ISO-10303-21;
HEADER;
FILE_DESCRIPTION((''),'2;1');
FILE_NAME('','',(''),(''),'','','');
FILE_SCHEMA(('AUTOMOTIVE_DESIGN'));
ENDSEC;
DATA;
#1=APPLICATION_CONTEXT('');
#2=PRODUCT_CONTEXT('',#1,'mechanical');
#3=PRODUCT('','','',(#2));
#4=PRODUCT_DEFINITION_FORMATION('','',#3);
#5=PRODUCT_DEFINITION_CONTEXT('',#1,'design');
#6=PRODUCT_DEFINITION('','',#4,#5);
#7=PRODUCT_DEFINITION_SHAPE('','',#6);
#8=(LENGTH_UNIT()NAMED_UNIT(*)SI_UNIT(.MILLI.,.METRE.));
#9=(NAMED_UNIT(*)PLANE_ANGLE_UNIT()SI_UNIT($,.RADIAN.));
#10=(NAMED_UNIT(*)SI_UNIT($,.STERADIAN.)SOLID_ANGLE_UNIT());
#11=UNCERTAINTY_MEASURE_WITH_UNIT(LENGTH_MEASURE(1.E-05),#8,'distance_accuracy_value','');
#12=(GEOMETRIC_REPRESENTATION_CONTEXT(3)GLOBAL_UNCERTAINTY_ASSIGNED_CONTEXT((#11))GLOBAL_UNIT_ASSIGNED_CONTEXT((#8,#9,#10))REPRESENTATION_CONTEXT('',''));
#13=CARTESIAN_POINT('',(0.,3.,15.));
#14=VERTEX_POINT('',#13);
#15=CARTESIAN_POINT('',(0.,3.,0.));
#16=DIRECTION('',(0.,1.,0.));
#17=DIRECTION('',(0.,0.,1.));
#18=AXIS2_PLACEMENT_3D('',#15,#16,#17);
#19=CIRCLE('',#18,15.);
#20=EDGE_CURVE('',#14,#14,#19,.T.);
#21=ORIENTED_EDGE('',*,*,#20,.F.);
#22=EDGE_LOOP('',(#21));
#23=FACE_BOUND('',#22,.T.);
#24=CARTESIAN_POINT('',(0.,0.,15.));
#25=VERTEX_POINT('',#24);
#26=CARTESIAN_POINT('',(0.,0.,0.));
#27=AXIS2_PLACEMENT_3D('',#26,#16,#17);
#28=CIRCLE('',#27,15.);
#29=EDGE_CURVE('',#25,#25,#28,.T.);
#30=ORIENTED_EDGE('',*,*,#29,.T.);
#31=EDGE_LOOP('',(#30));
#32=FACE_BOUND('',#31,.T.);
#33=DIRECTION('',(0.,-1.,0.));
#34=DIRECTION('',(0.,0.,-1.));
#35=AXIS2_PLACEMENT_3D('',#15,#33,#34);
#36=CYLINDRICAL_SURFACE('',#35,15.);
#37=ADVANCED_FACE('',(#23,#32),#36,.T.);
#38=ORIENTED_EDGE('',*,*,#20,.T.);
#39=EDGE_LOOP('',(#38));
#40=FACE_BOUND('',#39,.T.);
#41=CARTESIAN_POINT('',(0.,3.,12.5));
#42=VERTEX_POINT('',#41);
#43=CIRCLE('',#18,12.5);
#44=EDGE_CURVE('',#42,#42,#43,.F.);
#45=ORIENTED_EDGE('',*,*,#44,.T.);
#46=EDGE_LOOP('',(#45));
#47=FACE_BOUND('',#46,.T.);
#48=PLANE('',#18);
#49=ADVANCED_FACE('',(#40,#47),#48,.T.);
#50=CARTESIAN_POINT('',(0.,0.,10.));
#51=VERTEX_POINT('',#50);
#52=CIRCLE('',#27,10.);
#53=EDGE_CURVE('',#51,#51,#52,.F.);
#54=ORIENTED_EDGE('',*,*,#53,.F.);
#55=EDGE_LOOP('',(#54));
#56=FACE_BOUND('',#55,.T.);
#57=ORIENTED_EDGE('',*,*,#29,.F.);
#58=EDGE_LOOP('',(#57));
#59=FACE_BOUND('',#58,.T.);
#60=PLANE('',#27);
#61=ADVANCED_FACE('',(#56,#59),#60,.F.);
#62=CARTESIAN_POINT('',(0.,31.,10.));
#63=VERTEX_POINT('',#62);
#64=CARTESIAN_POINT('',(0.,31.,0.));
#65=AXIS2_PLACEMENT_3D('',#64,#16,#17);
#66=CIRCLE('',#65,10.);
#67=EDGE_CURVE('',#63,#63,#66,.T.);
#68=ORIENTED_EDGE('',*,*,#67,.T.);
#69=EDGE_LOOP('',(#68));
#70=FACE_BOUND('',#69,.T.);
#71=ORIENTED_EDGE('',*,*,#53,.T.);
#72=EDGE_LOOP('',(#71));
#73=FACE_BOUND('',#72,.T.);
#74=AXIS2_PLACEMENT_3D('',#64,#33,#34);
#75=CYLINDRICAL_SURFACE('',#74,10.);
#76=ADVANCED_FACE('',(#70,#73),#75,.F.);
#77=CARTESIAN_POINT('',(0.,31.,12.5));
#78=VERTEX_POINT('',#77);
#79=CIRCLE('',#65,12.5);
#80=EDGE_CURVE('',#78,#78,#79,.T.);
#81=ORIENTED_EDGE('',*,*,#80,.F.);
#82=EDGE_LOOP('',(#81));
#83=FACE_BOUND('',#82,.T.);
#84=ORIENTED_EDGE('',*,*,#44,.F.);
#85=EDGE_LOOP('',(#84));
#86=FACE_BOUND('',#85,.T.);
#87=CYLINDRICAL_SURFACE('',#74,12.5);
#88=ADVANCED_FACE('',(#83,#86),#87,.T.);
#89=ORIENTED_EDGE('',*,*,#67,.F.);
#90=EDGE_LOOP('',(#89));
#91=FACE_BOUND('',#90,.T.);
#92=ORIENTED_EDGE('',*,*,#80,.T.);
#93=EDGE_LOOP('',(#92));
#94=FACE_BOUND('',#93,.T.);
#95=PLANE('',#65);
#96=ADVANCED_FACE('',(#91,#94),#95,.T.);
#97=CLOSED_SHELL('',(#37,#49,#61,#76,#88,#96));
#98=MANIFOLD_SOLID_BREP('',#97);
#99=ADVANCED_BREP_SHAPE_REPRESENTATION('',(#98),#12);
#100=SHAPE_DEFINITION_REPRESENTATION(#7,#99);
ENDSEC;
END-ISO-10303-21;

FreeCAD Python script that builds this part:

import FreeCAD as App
import Part
import Sketcher

doc = App.newDocument("Part")
body = doc.addObject("PartDesign::Body", "Body")

# Sketch on XZ plane
sketch1 = body.newObject("Sketcher::SketchObject", "Sketch")
sketch1.AttachmentSupport = (doc.getObject("XZ_Plane"), [""])
sketch1.MapMode = "FlatFace"
sketch1.addGeometry(Part.Circle(App.Vector(0, 0, 0), App.Vector(0, 0, 1), 15), False)
sketch1.addConstraint([
    Sketcher.Constraint("Coincident", 0, 3, -1, 1),
    Sketcher.Constraint("Diameter", 0, 30.0),
])
pad1 = body.newObject("PartDesign::Pad", "Pad")
pad1.Profile = sketch1
pad1.Length = 3
pad1.Reversed = True

# Sketch on XZ plane
sketch2 = body.newObject("Sketcher::SketchObject", "Sketch001")
sketch2.AttachmentSupport = (doc.getObject("XZ_Plane"), [""])
sketch2.MapMode = "FlatFace"
sketch2.addGeometry(Part.Circle(App.Vector(0, 0, 0), App.Vector(0, 0, 1), 12), False)
sketch2.addConstraint([
    Sketcher.Constraint("Coincident", 0, 3, -1, 1),
    Sketcher.Constraint("Diameter", 0, 25.0),
])
pad2 = body.newObject("PartDesign::Pad", "Pad001")
pad2.Profile = sketch2
pad2.Length = 31
pad2.Reversed = True

# Sketch on XZ plane
sketch3 = body.newObject("Sketcher::SketchObject", "Sketch002")
sketch3.AttachmentSupport = (doc.getObject("XZ_Plane"), [""])
sketch3.MapMode = "FlatFace"
sketch3.addGeometry(Part.Circle(App.Vector(0, 0, 0), App.Vector(0, 0, 1), 10), False)
sketch3.addConstraint([
    Sketcher.Constraint("Coincident", 0, 3, -1, 1),
    Sketcher.Constraint("Diameter", 0, 20.0),
])
pocket1 = body.newObject("PartDesign::Pocket", "Pocket")
pocket1.Profile = sketch3
pocket1.Type = "ThroughAll"
pocket1.Midplane = True

doc.recompute()
